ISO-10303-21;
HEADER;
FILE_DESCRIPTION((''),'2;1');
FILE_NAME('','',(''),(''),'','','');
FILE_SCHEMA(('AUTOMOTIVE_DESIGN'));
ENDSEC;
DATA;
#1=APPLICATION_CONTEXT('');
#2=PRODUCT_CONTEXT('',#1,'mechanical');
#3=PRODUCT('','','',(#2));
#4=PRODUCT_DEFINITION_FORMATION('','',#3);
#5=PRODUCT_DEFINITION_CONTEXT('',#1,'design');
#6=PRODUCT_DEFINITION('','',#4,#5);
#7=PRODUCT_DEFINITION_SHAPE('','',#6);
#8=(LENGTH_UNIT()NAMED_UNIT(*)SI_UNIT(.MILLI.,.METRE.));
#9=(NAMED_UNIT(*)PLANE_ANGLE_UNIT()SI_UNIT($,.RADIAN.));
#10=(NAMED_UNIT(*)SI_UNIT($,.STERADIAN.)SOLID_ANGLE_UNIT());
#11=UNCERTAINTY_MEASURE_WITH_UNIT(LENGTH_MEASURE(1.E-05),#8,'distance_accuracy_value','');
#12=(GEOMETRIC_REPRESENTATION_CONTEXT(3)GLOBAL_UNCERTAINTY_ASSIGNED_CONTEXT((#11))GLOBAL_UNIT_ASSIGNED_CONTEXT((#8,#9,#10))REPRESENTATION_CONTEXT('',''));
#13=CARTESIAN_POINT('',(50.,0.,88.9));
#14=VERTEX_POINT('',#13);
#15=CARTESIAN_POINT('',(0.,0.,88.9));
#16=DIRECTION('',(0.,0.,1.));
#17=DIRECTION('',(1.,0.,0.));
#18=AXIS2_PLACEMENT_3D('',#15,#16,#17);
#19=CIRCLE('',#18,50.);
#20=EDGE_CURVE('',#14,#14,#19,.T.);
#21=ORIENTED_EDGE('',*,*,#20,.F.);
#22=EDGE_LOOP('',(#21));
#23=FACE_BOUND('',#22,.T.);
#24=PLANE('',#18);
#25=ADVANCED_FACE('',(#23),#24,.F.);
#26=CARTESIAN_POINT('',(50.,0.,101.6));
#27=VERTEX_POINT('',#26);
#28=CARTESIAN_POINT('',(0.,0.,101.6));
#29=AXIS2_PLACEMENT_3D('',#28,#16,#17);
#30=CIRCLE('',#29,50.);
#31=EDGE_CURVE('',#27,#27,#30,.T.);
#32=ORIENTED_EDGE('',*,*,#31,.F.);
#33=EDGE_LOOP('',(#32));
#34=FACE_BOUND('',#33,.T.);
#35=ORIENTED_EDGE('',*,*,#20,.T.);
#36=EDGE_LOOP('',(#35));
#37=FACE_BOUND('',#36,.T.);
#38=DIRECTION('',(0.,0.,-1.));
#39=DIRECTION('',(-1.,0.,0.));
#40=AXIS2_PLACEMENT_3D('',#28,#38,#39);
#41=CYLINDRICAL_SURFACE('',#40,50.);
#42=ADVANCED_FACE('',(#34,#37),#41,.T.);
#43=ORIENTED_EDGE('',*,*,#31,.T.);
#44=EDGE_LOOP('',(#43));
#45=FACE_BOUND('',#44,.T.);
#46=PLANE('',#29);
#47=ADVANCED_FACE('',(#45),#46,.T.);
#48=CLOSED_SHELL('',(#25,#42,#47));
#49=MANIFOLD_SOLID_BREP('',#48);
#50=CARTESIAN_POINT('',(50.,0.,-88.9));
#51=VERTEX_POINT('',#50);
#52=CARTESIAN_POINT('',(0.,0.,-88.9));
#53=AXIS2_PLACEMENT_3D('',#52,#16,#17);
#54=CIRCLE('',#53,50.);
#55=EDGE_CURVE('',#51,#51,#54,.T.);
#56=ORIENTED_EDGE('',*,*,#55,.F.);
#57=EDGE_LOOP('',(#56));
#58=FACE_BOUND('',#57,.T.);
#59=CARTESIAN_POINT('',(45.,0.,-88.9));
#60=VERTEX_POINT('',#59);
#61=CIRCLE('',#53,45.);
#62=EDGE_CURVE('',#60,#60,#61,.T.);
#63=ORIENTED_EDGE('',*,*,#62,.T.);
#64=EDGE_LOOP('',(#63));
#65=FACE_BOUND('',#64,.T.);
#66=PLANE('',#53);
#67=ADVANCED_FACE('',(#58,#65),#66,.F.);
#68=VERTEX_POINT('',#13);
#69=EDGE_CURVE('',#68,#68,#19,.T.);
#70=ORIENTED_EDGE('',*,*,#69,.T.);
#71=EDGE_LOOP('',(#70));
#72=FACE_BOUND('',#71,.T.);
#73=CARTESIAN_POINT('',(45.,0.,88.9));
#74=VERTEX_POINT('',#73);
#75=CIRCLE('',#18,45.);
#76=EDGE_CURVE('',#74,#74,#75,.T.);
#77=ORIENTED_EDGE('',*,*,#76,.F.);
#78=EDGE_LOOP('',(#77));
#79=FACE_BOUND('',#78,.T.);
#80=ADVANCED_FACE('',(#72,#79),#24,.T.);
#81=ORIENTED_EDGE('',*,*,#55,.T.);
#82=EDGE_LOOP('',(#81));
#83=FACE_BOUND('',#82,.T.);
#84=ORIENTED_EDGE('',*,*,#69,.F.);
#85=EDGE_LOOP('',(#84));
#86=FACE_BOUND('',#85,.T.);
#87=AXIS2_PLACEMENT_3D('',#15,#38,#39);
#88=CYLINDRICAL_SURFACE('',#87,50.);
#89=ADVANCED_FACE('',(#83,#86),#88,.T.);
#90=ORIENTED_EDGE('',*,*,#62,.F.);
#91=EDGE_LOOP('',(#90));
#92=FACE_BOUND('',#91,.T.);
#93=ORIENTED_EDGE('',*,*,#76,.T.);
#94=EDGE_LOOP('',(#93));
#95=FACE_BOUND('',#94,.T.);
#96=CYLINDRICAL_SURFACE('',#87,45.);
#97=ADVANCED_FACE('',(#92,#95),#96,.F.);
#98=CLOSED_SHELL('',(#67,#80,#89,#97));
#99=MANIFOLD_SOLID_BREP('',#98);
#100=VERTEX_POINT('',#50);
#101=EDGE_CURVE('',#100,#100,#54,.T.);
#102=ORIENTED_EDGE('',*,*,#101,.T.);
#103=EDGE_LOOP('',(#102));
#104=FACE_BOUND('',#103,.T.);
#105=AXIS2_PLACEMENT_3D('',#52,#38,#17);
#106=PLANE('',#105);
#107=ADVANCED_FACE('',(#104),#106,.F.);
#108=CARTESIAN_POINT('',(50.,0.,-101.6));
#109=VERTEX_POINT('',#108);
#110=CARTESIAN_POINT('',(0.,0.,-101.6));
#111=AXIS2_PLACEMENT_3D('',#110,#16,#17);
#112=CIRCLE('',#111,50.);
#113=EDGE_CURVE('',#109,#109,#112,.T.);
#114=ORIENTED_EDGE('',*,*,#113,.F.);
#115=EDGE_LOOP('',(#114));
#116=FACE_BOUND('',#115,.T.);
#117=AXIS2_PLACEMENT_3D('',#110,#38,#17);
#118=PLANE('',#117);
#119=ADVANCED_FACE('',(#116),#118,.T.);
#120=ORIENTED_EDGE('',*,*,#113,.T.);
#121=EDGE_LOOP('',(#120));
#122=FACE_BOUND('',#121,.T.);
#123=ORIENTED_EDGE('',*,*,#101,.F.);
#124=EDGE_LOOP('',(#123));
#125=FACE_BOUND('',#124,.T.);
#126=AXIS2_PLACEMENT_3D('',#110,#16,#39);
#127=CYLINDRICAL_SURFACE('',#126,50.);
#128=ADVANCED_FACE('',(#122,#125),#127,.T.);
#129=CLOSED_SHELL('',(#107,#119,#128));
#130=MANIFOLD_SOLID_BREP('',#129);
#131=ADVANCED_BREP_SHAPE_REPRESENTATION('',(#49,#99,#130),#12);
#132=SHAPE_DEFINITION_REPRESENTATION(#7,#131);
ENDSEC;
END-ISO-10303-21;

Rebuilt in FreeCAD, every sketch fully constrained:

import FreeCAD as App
import Part
import Sketcher
from FreeCAD import Vector
Q = App.Units.Quantity

doc = App.newDocument("Part")
body = doc.addObject("PartDesign::Body", "Body")

# Sketch on XY plane
sketch1 = doc.addObject("Sketcher::SketchObject", "Sketch")
body.addObject(sketch1)
sketch1.AttachmentSupport = (doc.XY_Plane, [""])
sketch1.MapMode = "FlatFace"
sketch1.addGeometry(Part.Circle(Vector(0, 0, 0), Vector(0, 0, 1), 50), False)
sketch1.addGeometry(Part.Circle(Vector(0, 0, 0), Vector(0, 0, 1), 45), False)
sketch1.addConstraint(Sketcher.Constraint("Coincident", 0, 3, -1, 1))
sketch1.addConstraint(Sketcher.Constraint("Coincident", 1, 3, -1, 1))
sketch1.addConstraint(Sketcher.Constraint("Diameter", 0, Q("100 mm")))
sketch1.addConstraint(Sketcher.Constraint("Diameter", 1, Q("90 mm")))
pad1 = doc.addObject("PartDesign::Pad", "Pad")
body.addObject(pad1)
pad1.Profile = sketch1
pad1.Length = 177.8
pad1.Midplane = True
body2 = doc.addObject("PartDesign::Body", "Body001")

# Sketch on XY plane
sketch2 = doc.addObject("Sketcher::SketchObject", "Sketch001")
body2.addObject(sketch2)
sketch2.AttachmentSupport = (doc.getObject("XY_Plane001"), [""])
sketch2.MapMode = "FlatFace"
sketch2.AttachmentOffset = App.Placement(Vector(0, 0, 88.9), App.Rotation())
sketch2.addGeometry(Part.Circle(Vector(0, 0, 0), Vector(0, 0, 1), 50), False)
sketch2.addConstraint(Sketcher.Constraint("Coincident", 0, 3, -1, 1))
sketch2.addConstraint(Sketcher.Constraint("Diameter", 0, Q("100 mm")))
pad2 = doc.addObject("PartDesign::Pad", "Pad001")
body2.addObject(pad2)
pad2.Profile = sketch2
pad2.Length = 12.7
body3 = doc.addObject("PartDesign::Body", "Body002")
doc.recompute()

mirroring = doc.addObject("Part::Mirroring", "Mirroring")
mirroring.Source = body2
mirroring.Base = Vector(0, 0, 0)
mirroring.Normal = Vector(0, 0, 1)
body3.BaseFeature = mirroring
doc.recompute()
mirroring.Visibility = False

doc.recompute()
